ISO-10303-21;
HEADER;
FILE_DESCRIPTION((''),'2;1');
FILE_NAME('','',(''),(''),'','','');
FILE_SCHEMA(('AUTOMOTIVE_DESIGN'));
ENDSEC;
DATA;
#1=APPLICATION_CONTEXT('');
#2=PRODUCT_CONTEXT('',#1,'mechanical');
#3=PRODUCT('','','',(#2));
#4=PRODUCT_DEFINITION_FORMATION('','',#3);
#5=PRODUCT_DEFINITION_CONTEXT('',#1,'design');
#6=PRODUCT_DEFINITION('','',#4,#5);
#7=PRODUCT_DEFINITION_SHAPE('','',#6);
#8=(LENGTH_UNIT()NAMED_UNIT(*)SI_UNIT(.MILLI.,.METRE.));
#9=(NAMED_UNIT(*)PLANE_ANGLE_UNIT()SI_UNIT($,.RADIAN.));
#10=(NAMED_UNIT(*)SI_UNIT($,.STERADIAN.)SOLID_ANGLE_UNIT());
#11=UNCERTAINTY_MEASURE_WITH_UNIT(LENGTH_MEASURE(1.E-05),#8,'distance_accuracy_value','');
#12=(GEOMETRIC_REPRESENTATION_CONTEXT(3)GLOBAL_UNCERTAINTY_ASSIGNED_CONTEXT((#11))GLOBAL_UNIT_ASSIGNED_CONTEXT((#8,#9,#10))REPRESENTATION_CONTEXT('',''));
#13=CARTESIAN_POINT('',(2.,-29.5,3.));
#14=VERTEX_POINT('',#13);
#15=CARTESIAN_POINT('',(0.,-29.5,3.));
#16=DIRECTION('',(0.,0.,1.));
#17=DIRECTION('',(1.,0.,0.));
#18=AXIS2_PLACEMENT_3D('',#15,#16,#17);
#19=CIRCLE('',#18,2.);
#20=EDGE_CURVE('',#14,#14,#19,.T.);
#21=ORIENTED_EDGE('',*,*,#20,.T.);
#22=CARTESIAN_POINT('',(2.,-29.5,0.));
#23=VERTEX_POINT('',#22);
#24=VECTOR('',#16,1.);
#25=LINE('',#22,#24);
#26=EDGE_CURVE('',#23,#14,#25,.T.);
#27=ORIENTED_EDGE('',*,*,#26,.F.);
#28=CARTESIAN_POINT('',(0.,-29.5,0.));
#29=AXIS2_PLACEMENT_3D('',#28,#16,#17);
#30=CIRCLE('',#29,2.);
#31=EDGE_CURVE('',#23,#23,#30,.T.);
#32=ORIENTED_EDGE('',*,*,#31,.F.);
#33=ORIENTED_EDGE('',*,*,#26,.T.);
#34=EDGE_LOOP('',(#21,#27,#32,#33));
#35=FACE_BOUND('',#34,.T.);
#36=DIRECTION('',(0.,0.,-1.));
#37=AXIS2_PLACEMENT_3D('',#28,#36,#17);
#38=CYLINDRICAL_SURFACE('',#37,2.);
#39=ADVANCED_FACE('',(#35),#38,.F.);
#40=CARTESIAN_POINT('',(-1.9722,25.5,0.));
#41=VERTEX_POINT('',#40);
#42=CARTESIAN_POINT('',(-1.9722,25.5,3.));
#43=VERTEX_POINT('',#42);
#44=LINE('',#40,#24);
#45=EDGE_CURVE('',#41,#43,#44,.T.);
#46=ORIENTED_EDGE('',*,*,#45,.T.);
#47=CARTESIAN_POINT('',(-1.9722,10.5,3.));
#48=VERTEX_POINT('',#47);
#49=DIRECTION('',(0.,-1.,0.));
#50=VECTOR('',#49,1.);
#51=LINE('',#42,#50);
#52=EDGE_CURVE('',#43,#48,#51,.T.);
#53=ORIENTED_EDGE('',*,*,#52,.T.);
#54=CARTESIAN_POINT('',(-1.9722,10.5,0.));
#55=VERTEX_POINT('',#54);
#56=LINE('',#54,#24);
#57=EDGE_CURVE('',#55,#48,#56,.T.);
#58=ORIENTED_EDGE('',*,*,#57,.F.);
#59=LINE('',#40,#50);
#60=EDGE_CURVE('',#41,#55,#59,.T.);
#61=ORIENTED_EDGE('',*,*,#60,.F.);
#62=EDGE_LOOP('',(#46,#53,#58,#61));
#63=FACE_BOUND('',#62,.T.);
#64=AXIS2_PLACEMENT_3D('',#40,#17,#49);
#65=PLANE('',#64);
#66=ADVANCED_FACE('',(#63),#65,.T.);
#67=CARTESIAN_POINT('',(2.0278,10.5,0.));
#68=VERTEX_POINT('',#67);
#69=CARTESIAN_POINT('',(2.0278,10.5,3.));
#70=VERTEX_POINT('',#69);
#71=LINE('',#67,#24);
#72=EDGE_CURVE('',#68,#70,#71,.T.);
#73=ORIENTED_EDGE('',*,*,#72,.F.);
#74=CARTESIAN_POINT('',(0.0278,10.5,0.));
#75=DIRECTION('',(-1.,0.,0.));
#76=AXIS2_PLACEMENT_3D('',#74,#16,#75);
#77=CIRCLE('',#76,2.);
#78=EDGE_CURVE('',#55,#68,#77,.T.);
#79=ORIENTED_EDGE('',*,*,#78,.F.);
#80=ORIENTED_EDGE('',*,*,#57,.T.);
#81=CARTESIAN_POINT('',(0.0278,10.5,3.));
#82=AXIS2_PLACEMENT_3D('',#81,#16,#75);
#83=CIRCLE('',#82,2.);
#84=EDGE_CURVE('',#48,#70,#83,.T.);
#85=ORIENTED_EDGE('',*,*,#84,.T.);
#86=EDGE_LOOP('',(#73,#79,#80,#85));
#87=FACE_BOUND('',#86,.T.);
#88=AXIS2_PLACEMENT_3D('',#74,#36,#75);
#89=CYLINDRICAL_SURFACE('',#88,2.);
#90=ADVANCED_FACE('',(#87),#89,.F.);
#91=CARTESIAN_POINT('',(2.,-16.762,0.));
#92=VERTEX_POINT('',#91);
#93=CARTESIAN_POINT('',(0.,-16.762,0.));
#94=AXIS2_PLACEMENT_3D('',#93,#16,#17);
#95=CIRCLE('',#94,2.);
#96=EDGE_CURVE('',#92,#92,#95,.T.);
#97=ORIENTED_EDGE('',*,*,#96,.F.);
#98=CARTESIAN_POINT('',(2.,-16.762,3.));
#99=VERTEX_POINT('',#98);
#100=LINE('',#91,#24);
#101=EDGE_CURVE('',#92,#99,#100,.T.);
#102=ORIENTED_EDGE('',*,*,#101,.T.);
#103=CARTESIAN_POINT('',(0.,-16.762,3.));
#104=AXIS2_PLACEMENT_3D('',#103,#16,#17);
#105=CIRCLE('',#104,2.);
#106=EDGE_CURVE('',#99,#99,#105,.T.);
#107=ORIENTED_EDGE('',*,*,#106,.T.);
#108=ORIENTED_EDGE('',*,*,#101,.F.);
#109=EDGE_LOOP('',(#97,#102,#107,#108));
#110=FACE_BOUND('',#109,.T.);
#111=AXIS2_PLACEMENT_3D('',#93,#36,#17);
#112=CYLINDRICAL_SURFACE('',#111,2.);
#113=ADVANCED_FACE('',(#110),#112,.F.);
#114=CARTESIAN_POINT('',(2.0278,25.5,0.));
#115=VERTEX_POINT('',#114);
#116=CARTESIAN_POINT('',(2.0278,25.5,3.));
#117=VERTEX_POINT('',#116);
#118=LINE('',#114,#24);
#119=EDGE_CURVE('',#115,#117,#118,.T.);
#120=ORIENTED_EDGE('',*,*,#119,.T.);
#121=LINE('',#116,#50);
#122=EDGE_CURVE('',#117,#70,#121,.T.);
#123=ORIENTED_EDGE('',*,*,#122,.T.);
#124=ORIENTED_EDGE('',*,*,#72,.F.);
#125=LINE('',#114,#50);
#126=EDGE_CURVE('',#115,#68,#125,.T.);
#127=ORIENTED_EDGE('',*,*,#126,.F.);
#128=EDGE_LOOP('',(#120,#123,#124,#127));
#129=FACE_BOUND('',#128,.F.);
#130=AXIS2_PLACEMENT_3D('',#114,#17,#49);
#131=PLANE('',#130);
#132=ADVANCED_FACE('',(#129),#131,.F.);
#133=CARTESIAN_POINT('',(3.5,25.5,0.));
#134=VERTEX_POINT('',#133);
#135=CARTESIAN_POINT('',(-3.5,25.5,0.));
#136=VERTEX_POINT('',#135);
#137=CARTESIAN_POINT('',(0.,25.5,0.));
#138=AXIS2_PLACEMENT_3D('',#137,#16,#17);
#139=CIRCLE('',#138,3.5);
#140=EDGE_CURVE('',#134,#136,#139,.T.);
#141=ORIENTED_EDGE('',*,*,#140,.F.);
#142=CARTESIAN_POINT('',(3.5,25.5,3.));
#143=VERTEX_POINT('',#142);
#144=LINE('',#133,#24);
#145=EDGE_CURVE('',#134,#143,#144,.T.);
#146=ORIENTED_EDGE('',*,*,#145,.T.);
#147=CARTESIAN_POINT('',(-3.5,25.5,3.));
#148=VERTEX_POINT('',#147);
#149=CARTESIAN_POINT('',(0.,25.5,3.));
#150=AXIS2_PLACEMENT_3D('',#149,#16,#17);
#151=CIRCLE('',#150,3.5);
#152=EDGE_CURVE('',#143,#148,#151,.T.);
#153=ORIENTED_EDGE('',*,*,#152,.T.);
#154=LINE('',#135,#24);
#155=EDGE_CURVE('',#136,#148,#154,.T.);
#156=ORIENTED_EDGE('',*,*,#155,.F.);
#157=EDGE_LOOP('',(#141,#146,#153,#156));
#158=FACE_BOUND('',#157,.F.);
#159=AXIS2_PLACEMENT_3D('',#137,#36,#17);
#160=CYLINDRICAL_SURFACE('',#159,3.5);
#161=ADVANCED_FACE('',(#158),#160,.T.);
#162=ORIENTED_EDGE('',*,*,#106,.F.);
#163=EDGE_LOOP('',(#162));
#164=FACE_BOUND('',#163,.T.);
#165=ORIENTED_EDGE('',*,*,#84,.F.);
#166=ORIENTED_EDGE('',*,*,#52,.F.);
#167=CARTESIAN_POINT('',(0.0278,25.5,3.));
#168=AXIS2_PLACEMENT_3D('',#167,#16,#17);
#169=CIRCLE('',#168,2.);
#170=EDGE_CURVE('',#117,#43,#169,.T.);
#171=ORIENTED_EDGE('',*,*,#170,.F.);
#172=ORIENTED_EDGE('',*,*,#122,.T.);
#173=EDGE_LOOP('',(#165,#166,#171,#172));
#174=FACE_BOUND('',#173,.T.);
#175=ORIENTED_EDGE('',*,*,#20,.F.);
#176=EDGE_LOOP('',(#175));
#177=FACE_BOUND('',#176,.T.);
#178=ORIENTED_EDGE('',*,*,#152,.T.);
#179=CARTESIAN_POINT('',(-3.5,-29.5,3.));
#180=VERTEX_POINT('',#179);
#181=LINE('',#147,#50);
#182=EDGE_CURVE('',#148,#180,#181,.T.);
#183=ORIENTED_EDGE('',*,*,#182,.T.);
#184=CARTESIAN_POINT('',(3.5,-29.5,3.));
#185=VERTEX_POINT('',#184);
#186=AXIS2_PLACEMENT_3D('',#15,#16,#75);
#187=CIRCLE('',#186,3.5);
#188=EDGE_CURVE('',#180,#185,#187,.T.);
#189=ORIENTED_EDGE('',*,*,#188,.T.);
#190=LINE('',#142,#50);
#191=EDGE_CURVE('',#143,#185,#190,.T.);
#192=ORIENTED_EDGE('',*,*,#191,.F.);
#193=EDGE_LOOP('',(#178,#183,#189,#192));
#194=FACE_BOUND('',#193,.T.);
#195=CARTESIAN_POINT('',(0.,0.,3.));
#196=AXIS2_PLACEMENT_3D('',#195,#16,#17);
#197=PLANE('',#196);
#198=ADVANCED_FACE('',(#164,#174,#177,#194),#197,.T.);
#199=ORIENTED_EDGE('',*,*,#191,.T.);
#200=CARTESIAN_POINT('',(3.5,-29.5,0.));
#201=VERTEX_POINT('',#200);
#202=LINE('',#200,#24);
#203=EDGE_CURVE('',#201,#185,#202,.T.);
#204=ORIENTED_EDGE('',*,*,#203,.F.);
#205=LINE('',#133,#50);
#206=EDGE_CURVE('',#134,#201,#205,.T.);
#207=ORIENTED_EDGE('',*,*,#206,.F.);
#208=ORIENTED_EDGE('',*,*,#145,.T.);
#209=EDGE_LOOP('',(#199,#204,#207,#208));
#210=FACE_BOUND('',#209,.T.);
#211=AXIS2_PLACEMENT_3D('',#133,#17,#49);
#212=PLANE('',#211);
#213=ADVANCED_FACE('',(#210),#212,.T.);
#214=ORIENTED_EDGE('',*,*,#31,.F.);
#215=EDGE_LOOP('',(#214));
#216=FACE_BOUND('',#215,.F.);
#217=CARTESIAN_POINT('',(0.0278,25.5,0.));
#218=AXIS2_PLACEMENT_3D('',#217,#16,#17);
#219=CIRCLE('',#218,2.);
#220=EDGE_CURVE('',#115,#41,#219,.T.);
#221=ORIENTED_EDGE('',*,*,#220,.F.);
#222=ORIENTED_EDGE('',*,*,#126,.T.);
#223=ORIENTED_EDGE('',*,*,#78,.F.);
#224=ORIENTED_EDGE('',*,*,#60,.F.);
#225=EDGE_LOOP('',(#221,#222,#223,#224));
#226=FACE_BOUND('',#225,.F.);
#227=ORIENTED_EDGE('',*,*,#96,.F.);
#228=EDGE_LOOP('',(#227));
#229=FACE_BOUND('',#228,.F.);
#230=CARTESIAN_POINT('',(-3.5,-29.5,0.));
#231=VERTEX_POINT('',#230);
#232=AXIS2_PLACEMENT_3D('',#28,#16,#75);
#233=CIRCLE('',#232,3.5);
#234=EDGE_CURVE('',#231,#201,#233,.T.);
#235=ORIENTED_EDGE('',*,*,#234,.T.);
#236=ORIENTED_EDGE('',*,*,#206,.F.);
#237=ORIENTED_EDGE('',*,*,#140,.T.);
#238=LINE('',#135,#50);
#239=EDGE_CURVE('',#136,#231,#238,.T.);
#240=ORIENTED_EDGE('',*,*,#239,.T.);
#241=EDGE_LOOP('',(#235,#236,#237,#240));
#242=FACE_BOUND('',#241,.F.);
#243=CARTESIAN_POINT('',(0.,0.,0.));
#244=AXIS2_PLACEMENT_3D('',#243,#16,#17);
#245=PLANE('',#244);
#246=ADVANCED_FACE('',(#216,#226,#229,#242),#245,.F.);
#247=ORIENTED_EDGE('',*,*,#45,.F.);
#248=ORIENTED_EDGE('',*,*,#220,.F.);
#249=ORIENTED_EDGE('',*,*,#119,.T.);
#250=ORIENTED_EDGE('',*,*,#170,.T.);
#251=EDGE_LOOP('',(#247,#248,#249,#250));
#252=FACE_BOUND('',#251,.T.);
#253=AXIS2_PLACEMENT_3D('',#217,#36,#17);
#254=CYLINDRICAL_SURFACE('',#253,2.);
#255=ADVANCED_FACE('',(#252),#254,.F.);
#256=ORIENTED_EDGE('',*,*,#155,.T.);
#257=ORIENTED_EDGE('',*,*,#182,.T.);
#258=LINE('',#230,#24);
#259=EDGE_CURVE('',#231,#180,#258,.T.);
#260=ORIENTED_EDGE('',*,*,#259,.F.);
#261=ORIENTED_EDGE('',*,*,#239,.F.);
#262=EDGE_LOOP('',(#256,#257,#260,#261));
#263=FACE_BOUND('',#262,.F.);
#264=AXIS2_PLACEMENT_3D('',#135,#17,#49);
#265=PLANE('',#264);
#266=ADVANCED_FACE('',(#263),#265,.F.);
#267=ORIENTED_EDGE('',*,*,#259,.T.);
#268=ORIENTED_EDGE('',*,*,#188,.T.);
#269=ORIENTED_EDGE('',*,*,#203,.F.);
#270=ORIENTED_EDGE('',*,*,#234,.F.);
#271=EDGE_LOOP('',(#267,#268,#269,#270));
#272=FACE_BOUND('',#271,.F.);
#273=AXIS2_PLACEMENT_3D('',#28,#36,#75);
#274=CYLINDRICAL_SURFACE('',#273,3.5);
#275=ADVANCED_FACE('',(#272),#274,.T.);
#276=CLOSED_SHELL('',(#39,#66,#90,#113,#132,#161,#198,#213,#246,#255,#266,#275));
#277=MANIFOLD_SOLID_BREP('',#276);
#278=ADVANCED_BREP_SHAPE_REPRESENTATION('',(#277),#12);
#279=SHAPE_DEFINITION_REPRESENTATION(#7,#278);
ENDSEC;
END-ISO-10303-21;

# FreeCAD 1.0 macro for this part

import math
import FreeCAD as App
import Part
import Sketcher

V = App.Vector

doc = App.newDocument("Part")
body = doc.addObject("PartDesign::Body", "Body")

# Sketch on XY plane
sketch1 = body.newObject("Sketcher::SketchObject", "Sketch")
sketch1.AttachmentSupport = (doc.getObject("XY_Plane"), [""])
sketch1.MapMode = "FlatFace"
sketch1.addGeometry(Part.LineSegment(V(3.5, -29.5, 0), V(3.5, 25.5, 0)), False)
sketch1.addGeometry(Part.ArcOfCircle(Part.Circle(V(0, 25.5, 0), V(0, 0, 1), 3.5), math.radians(0), math.radians(180)), False)
sketch1.addGeometry(Part.LineSegment(V(-3.5, 25.5, 0), V(-3.5, -29.5, 0)), False)
sketch1.addGeometry(Part.ArcOfCircle(Part.Circle(V(0, -29.5, 0), V(0, 0, 1), 3.5), math.radians(180), math.radians(360)), False)
sketch1.addGeometry(Part.Circle(V(0, -29.5, 0), V(0, 0, 1), 2), False)
sketch1.addGeometry(Part.Circle(V(0, -16.8, 0), V(0, 0, 1), 2), False)
sketch1.addGeometry(Part.LineSegment(V(-2, 10.5, 0), V(-2, 25.5, 0)), False)
sketch1.addGeometry(Part.ArcOfCircle(Part.Circle(V(0, 25.5, 0), V(0, 0, 1), 2), math.radians(0), math.radians(180)), False)
sketch1.addGeometry(Part.LineSegment(V(2, 25.5, 0), V(2, 10.5, 0)), False)
sketch1.addGeometry(Part.ArcOfCircle(Part.Circle(V(0, 10.5, 0), V(0, 0, 1), 2), math.radians(180), math.radians(360)), False)
sketch1.addConstraint(Sketcher.Constraint("Tangent", 0, 2, 1, 1))
sketch1.addConstraint(Sketcher.Constraint("Tangent", 1, 2, 2, 1))
sketch1.addConstraint(Sketcher.Constraint("Tangent", 2, 2, 3, 1))
sketch1.addConstraint(Sketcher.Constraint("Tangent", 3, 2, 0, 1))
sketch1.addConstraint(Sketcher.Constraint("Tangent", 6, 2, 7, 2))
sketch1.addConstraint(Sketcher.Constraint("Tangent", 7, 1, 8, 1))
sketch1.addConstraint(Sketcher.Constraint("Tangent", 8, 2, 9, 2))
sketch1.addConstraint(Sketcher.Constraint("Tangent", 9, 1, 6, 1))
sketch1.addConstraint(Sketcher.Constraint("Vertical", 0))
sketch1.addConstraint(Sketcher.Constraint("Vertical", 2))
sketch1.addConstraint(Sketcher.Constraint("Vertical", 6))
sketch1.addConstraint(Sketcher.Constraint("Vertical", 8))
sketch1.addConstraint(Sketcher.Constraint("Coincident", 4, 3, 3, 3))
sketch1.addConstraint(Sketcher.Constraint("Equal", 4, 5))
sketch1.addConstraint(Sketcher.Constraint("Equal", 5, 7))
sketch1.addConstraint(Sketcher.Constraint("PointOnObject", 1, 3, -2))
sketch1.addConstraint(Sketcher.Constraint("PointOnObject", 5, 3, -2))
sketch1.addConstraint(Sketcher.Constraint("Horizontal", 1, 3, 7, 3))
sketch1.addConstraint(Sketcher.Constraint("Diameter", 4, 4.0))
sketch1.addConstraint(Sketcher.Constraint("Radius", 1, 3.5))
sketch1.addConstraint(Sketcher.Constraint("DistanceY", 0, 1, 0, 2, 55.0))
sketch1.addConstraint(Sketcher.Constraint("DistanceY", 6, 1, 6, 2, 15.0))
sketch1.addConstraint(Sketcher.Constraint("DistanceY", 3, 3, 5, 3, 12.738))
sketch1.addConstraint(Sketcher.Constraint("DistanceY", -1, 1, 1, 3, 25.5))
sketch1.addConstraint(Sketcher.Constraint("DistanceX", -1, 1, 7, 3, 0.0278))
pad1 = body.newObject("PartDesign::Pad", "Pad")
pad1.Profile = sketch1
pad1.Length = 3

doc.recompute()
